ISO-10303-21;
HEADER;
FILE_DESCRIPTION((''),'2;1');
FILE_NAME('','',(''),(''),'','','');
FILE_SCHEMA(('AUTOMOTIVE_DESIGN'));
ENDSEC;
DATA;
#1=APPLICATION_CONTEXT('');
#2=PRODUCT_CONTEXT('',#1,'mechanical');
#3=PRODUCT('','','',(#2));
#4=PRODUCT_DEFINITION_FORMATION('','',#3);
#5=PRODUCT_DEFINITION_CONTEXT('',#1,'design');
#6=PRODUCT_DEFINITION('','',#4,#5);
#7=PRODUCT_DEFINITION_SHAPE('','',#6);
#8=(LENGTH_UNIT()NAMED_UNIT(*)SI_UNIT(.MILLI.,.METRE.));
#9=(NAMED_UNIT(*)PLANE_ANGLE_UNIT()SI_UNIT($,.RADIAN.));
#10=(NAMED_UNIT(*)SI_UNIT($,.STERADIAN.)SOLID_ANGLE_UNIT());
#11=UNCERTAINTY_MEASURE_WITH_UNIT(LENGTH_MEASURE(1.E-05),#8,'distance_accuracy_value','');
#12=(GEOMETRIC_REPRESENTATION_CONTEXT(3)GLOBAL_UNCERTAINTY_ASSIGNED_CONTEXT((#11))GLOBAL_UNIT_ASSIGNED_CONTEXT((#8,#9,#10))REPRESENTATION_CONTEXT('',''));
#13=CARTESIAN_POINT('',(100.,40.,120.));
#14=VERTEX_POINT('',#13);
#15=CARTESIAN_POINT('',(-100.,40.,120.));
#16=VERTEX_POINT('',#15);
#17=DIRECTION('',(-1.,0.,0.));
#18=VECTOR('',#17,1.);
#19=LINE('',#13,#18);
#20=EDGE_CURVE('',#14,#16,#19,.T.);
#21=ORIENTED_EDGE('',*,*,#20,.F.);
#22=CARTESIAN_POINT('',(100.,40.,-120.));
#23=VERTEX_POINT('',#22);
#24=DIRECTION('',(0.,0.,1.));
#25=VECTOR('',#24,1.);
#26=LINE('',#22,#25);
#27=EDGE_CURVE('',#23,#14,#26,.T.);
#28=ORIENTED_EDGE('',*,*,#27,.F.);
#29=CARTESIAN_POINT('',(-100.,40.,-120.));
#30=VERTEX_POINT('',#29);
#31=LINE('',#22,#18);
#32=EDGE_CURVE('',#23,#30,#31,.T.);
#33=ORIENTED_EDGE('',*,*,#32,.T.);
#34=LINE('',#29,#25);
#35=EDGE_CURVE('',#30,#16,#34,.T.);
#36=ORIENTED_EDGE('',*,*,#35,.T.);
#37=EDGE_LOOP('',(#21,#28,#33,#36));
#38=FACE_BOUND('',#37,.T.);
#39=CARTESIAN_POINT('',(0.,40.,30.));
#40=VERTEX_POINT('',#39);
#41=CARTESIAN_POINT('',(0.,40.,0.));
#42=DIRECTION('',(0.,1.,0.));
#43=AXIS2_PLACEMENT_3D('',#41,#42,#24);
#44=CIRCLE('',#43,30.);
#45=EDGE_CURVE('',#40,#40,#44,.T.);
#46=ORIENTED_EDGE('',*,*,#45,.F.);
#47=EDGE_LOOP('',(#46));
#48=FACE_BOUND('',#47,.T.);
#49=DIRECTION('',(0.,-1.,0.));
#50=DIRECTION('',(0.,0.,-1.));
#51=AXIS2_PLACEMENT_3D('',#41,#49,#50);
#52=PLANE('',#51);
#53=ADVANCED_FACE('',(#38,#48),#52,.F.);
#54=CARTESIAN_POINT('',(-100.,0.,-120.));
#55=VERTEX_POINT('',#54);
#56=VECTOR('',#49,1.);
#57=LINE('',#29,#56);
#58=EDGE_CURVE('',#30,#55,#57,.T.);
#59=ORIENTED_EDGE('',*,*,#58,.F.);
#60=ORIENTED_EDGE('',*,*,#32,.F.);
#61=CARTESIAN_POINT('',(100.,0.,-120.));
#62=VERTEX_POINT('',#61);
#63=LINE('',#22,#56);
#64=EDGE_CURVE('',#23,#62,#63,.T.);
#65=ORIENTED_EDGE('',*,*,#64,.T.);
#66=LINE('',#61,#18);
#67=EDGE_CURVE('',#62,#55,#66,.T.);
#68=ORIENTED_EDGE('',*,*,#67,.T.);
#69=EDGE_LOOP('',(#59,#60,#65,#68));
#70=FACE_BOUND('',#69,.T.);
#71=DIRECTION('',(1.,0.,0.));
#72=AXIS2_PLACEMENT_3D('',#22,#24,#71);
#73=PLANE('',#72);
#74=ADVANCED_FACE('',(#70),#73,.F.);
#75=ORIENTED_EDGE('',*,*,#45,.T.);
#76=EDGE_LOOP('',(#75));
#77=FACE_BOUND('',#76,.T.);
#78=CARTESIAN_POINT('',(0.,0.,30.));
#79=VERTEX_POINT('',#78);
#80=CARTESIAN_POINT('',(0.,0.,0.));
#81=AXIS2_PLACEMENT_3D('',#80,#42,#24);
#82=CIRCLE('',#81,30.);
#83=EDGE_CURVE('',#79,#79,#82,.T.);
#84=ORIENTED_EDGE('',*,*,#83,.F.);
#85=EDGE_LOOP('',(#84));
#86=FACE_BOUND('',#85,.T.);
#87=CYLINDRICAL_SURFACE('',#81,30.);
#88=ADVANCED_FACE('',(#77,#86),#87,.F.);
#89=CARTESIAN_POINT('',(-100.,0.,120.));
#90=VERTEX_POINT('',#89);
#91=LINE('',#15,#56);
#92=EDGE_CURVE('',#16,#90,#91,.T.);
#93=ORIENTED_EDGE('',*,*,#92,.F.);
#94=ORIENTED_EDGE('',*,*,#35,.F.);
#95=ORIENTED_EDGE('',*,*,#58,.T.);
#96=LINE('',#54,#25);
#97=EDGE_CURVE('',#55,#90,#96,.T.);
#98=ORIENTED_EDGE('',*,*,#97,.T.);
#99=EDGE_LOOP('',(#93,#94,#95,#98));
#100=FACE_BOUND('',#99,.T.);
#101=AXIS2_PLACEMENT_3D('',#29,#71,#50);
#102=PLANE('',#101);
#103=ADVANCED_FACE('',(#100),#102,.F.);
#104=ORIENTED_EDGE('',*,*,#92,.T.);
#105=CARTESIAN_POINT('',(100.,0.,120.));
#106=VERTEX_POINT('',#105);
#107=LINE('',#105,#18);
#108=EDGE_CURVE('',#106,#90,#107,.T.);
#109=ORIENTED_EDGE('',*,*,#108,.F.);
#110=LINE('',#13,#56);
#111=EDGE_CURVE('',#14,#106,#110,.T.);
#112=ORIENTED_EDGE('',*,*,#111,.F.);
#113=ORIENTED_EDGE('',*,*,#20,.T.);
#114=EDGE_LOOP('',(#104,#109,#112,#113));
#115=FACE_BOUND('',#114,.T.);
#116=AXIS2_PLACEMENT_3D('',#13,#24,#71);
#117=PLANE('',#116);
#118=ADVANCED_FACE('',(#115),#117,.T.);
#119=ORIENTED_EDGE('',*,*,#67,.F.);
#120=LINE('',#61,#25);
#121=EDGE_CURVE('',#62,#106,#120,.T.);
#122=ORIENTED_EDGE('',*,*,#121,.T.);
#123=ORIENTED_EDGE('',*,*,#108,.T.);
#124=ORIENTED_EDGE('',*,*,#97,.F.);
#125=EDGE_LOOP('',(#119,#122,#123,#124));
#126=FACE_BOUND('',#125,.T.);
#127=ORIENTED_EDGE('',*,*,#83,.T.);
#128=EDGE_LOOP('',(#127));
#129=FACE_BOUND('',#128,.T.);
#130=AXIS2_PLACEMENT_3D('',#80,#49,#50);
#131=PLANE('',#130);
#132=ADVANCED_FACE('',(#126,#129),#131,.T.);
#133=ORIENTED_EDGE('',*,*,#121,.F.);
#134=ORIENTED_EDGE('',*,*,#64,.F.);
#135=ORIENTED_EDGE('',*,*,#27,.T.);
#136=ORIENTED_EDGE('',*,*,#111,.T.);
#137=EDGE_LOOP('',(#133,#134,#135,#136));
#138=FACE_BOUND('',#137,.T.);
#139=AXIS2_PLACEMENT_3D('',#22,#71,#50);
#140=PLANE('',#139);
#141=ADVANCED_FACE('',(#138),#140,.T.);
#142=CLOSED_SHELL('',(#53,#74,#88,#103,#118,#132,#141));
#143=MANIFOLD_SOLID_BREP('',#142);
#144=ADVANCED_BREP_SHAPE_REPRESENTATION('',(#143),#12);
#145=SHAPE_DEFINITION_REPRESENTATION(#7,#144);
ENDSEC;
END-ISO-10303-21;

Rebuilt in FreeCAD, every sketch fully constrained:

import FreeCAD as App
import Part
import Sketcher

V = App.Vector


def add_polygon(sketch, points):
    """Adds a closed chain of lines whose ends are joined by coincident constraints."""
    first, n = sketch.GeometryCount, len(points)
    for a, b in zip(points, points[1:] + points[:1]):
        sketch.addGeometry(Part.LineSegment(App.Vector(*a, 0), App.Vector(*b, 0)), False)
    for i in range(n):
        sketch.addConstraint(Sketcher.Constraint("Coincident", first + i, 2, first + (i + 1) % n, 1))

doc = App.newDocument("Part")
body = doc.addObject("PartDesign::Body", "Body")

# Sketch on XZ plane
sketch1 = body.newObject("Sketcher::SketchObject", "Sketch")
sketch1.AttachmentSupport = (doc.getObject("XZ_Plane"), [""])
sketch1.MapMode = "FlatFace"
add_polygon(sketch1, [(-100, -120), (-100, 120), (100, 120), (100, -120)])  # lines 0-3
sketch1.addConstraint(Sketcher.Constraint("Vertical", 0))
sketch1.addConstraint(Sketcher.Constraint("Horizontal", 1))
sketch1.addConstraint(Sketcher.Constraint("Vertical", 2))
sketch1.addConstraint(Sketcher.Constraint("Horizontal", 3))
sketch1.addConstraint(Sketcher.Constraint("Symmetric", 0, 2, 2, 2, -1, 1))
sketch1.addConstraint(Sketcher.Constraint("DistanceX", 1, 1, 1, 2, 200.0))
sketch1.addConstraint(Sketcher.Constraint("DistanceY", 0, 1, 0, 2, 240.0))
pad1 = body.newObject("PartDesign::Pad", "Pad")
pad1.Profile = sketch1
pad1.Length = 40
pad1.Reversed = True

# Sketch on XZ plane
sketch2 = body.newObject("Sketcher::SketchObject", "Sketch001")
sketch2.AttachmentSupport = (doc.getObject("XZ_Plane"), [""])
sketch2.MapMode = "FlatFace"
sketch2.AttachmentOffset = App.Placement(V(0, 0, -40), App.Rotation())
sketch2.addGeometry(Part.Circle(V(0, 0, 0), V(0, 0, 1), 30), False)
sketch2.addConstraint(Sketcher.Constraint("Coincident", 0, 3, -1, 1))
sketch2.addConstraint(Sketcher.Constraint("Diameter", 0, 60.0))
pocket1 = body.newObject("PartDesign::Pocket", "Pocket")
pocket1.Profile = sketch2
pocket1.Length = 40
pocket1.Reversed = True

doc.recompute()
